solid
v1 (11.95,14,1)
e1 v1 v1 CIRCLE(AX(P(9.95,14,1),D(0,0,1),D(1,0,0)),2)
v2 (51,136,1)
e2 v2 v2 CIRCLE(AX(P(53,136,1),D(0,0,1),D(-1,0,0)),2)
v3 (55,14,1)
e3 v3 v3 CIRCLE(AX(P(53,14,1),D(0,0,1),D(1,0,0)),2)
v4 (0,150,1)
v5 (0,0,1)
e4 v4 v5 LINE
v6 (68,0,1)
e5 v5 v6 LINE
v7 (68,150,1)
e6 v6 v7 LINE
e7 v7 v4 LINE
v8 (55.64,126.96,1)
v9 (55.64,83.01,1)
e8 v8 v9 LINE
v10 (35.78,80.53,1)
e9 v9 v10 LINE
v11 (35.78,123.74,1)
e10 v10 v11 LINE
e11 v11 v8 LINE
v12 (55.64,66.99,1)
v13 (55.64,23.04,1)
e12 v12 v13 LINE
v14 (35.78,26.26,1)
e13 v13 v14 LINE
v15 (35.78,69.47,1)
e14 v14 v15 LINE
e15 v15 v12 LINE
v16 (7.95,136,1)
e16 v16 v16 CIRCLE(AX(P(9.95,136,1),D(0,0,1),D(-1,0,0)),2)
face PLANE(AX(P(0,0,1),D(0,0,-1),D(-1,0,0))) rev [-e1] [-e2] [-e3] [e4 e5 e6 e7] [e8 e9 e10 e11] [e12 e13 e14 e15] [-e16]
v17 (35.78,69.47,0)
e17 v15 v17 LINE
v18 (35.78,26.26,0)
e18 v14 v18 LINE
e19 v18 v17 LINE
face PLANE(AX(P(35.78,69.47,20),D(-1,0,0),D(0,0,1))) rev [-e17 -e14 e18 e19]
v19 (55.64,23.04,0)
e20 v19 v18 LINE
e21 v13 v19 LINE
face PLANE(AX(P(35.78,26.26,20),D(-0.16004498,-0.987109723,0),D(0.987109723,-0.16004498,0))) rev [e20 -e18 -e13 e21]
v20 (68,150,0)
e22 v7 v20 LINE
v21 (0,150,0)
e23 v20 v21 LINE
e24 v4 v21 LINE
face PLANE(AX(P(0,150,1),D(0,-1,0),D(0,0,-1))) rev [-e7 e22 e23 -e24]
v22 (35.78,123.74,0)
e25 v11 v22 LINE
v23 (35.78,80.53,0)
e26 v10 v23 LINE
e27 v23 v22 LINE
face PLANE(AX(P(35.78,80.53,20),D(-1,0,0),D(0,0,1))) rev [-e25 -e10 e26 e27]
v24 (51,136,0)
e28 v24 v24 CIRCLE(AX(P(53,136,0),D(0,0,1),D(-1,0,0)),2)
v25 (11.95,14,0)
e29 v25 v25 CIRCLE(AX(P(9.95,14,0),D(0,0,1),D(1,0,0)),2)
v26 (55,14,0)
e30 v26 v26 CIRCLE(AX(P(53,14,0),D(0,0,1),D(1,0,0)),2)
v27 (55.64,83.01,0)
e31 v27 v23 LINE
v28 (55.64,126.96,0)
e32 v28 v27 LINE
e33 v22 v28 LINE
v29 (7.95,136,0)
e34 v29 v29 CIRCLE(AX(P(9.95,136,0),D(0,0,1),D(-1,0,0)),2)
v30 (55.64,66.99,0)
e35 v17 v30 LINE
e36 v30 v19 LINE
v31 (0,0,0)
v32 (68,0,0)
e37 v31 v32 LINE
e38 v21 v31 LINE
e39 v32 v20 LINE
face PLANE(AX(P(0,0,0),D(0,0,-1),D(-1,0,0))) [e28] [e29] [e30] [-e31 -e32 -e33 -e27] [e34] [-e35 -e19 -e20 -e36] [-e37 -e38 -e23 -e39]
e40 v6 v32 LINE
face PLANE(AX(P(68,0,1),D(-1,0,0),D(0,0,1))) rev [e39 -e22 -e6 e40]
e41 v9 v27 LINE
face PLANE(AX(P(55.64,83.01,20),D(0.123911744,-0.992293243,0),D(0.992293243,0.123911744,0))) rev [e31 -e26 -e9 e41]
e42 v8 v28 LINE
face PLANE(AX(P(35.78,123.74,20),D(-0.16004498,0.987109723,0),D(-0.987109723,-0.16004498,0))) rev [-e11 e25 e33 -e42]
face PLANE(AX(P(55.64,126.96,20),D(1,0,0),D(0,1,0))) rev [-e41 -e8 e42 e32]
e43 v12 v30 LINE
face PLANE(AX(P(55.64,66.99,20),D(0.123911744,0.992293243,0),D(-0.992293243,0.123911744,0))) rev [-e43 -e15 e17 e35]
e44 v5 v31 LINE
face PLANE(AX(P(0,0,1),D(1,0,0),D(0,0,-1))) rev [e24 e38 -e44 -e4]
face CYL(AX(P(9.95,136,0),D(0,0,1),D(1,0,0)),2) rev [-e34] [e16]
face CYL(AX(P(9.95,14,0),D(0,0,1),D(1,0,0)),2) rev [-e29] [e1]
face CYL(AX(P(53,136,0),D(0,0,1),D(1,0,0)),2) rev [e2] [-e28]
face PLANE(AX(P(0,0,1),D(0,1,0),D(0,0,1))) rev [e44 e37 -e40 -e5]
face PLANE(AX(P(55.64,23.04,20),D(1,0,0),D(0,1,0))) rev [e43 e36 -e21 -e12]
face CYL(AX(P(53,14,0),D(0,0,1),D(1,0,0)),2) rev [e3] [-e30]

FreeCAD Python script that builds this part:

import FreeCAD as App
import Part
import Sketcher
from FreeCAD import Vector


def add_polygon(sketch, points):
    """Adds a closed chain of lines whose ends are joined by coincident constraints."""
    first, n = sketch.GeometryCount, len(points)
    for a, b in zip(points, points[1:] + points[:1]):
        sketch.addGeometry(Part.LineSegment(App.Vector(*a, 0), App.Vector(*b, 0)), False)
    for i in range(n):
        sketch.addConstraint(Sketcher.Constraint("Coincident", first + i, 2, first + (i + 1) % n, 1))

doc = App.newDocument("Part")
body = doc.addObject("PartDesign::Body", "Body")

# Sketch on XY plane
sketch1 = body.newObject("Sketcher::SketchObject", "Sketch")
sketch1.AttachmentSupport = (doc.getObject("XY_Plane"), [""])
sketch1.MapMode = "FlatFace"
add_polygon(sketch1, [(0, 150), (0, 0), (68, 0), (68, 150)])  # lines 0-3
sketch1.addConstraint([
    Sketcher.Constraint("Vertical", 0),
    Sketcher.Constraint("Horizontal", 1),
    Sketcher.Constraint("Vertical", 2),
    Sketcher.Constraint("Horizontal", 3),
    Sketcher.Constraint("Coincident", 0, 2, -1, 1),
    Sketcher.Constraint("DistanceX", 1, 1, 1, 2, 68.0),
    Sketcher.Constraint("DistanceY", 0, 2, 0, 1, 150.0),
])
pad1 = body.newObject("PartDesign::Pad", "Pad")
pad1.Profile = sketch1
pad1.Length = 1

# Sketch on XY plane
sketch2 = body.newObject("Sketcher::SketchObject", "Sketch001")
sketch2.AttachmentSupport = (doc.getObject("XY_Plane"), [""])
sketch2.MapMode = "FlatFace"
sketch2.AttachmentOffset = App.Placement(Vector(0, 0, 1), App.Rotation())
sketch2.addGeometry([
    Part.Circle(Vector(9.9, 14, 0), Vector(0, 0, 1), 2),
    Part.Circle(Vector(53, 14, 0), Vector(0, 0, 1), 2),
    Part.Circle(Vector(53, 136, 0), Vector(0, 0, 1), 2),
    Part.Circle(Vector(9.9, 136, 0), Vector(0, 0, 1), 2),
], False)
sketch2.addConstraint([
    Sketcher.Constraint("Equal", 0, 1),
    Sketcher.Constraint("Equal", 1, 2),
    Sketcher.Constraint("Equal", 2, 3),
    Sketcher.Constraint("Horizontal", 0, 3, 1, 3),
    Sketcher.Constraint("Horizontal", 2, 3, 3, 3),
    Sketcher.Constraint("Vertical", 1, 3, 2, 3),
    Sketcher.Constraint("Vertical", 0, 3, 3, 3),
    Sketcher.Constraint("Diameter", 0, 4.0),
    Sketcher.Constraint("DistanceY", -1, 1, 0, 3, 14.0),
    Sketcher.Constraint("DistanceX", -1, 1, 1, 3, 53.0),
    Sketcher.Constraint("DistanceY", -1, 1, 2, 3, 136.0),
    Sketcher.Constraint("DistanceX", -1, 1, 0, 3, 9.95),
])
pocket1 = body.newObject("PartDesign::Pocket", "Pocket")
pocket1.Profile = sketch2
pocket1.Length = 1

# Sketch on XY plane
sketch3 = body.newObject("Sketcher::SketchObject", "Sketch002")
sketch3.AttachmentSupport = (doc.getObject("XY_Plane"), [""])
sketch3.MapMode = "FlatFace"
add_polygon(sketch3, [(36, 81), (36, 124), (56, 127), (56, 83)])  # lines 0-3
add_polygon(sketch3, [(36, 69), (56, 67), (56, 23), (36, 26)])  # lines 4-7
sketch3.addConstraint([
    Sketcher.Constraint("Vertical", 0),
    Sketcher.Constraint("Vertical", 2),
    Sketcher.Constraint("Vertical", 5),
    Sketcher.Constraint("Vertical", 7),
    Sketcher.Constraint("Vertical", 2, 2, 4, 2),
    Sketcher.Constraint("Vertical", 3, 2, 6, 2),
    Sketcher.Constraint("Equal", 2, 5),
    Sketcher.Constraint("Equal", 0, 7),
    Sketcher.Constraint("Equal", 3, 4),
    Sketcher.Constraint("DistanceY", 0, 1, 0, 2, 43.21),
    Sketcher.Constraint("DistanceY", 2, 2, 2, 1, 43.95),
    Sketcher.Constraint("DistanceY", 5, 2, 0, 2, 100.7),
    Sketcher.Constraint("DistanceX", -1, 1, 0, 2, 35.78),
    Sketcher.Constraint("DistanceY", -1, 1, 0, 2, 123.74),
    Sketcher.Constraint("DistanceX", -1, 1, 1, 2, 55.64),
    Sketcher.Constraint("DistanceY", -1, 1, 1, 2, 126.96),
])
pocket2 = body.newObject("PartDesign::Pocket", "Pocket001")
pocket2.Profile = sketch3
pocket2.Length = 20
pocket2.Reversed = True

doc.recompute()
